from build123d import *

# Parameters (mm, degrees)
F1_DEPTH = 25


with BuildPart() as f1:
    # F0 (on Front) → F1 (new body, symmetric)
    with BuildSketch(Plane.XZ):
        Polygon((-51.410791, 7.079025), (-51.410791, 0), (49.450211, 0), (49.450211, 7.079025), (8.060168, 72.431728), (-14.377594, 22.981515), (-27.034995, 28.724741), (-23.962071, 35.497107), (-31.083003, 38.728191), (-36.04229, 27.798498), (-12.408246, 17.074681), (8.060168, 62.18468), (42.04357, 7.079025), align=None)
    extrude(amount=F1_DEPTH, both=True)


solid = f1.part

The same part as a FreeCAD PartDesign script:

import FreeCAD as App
import Part
import Sketcher

doc = App.newDocument("Part")
body = doc.addObject("PartDesign::Body", "Body")

sketch1 = body.newObject("Sketcher::SketchObject", "Sketch")
sketch1.AttachmentSupport = (doc.getObject("XZ_Plane"), [""])
sketch1.MapMode = "FlatFace"
sketch1.addGeometry([
    Part.LineSegment(App.Vector(-51.410791, 7.079025, 0), App.Vector(-51.410791, 0, 0)),
    Part.LineSegment(App.Vector(-51.410791, 0, 0), App.Vector(49.450211, 0, 0)),
    Part.LineSegment(App.Vector(49.450211, 0, 0), App.Vector(49.450211, 7.079025, 0)),
    Part.LineSegment(App.Vector(49.450211, 7.079025, 0), App.Vector(8.060168, 72.431728, 0)),
    Part.LineSegment(App.Vector(8.060168, 72.431728, 0), App.Vector(-14.377594, 22.981515, 0)),
    Part.LineSegment(App.Vector(-14.377594, 22.981515, 0), App.Vector(-27.034995, 28.724741, 0)),
    Part.LineSegment(App.Vector(-27.034995, 28.724741, 0), App.Vector(-23.962071, 35.497107, 0)),
    Part.LineSegment(App.Vector(-23.962071, 35.497107, 0), App.Vector(-31.083003, 38.728191, 0)),
    Part.LineSegment(App.Vector(-31.083003, 38.728191, 0), App.Vector(-36.04229, 27.798498, 0)),
    Part.LineSegment(App.Vector(-36.04229, 27.798498, 0), App.Vector(-12.408246, 17.074681, 0)),
    Part.LineSegment(App.Vector(-12.408246, 17.074681, 0), App.Vector(8.060168, 62.18468, 0)),
    Part.LineSegment(App.Vector(8.060168, 62.18468, 0), App.Vector(42.04357, 7.079025, 0)),
    Part.LineSegment(App.Vector(42.04357, 7.079025, 0), App.Vector(-51.410791, 7.079025, 0)),
], False)
sketch1.addConstraint([
    Sketcher.Constraint("Coincident", 0, 2, 1, 1),
    Sketcher.Constraint("Coincident", 1, 2, 2, 1),
    Sketcher.Constraint("Coincident", 2, 2, 3, 1),
    Sketcher.Constraint("Coincident", 3, 2, 4, 1),
    Sketcher.Constraint("Coincident", 4, 2, 5, 1),
    Sketcher.Constraint("Coincident", 5, 2, 6, 1),
    Sketcher.Constraint("Coincident", 6, 2, 7, 1),
    Sketcher.Constraint("Coincident", 7, 2, 8, 1),
    Sketcher.Constraint("Coincident", 8, 2, 9, 1),
    Sketcher.Constraint("Coincident", 9, 2, 10, 1),
    Sketcher.Constraint("Coincident", 10, 2, 11, 1),
    Sketcher.Constraint("Coincident", 11, 2, 12, 1),
    Sketcher.Constraint("Coincident", 12, 2, 0, 1),
    Sketcher.Constraint("Vertical", 0),
    Sketcher.Constraint("Horizontal", 1),
    Sketcher.Constraint("Vertical", 2),
    Sketcher.Constraint("Horizontal", 12),
    Sketcher.Constraint("PointOnObject", 0, 2, -1),
    Sketcher.Constraint("Perpendicular", 4, 5),
    Sketcher.Constraint("Perpendicular", 5, 6),
    Sketcher.Constraint("Perpendicular", 6, 7),
    Sketcher.Constraint("Perpendicular", 7, 8),
    Sketcher.Constraint("Perpendicular", 8, 9),
    Sketcher.Constraint("Perpendicular", 9, 10),
    Sketcher.Constraint("Horizontal", 2, 2, 11, 2),
    Sketcher.Constraint("Vertical", 3, 2, 10, 2),
    Sketcher.Constraint("DistanceX", 12, 2, 12, 1, 93.454361),
    Sketcher.Constraint("DistanceX", 5, 2, 4, 2, 12.657401),
    Sketcher.Constraint("DistanceX", 0, 2, 8, 2, 15.368501),
    Sketcher.Constraint("DistanceX", 10, 2, 11, 2, 33.983402),
    Sketcher.Constraint("Distance", 3, 77.357039),
    Sketcher.Constraint("Distance", 4, 54.30264),
    Sketcher.Constraint("Distance", 5, 13.89944),
    Sketcher.Constraint("Distance", 6, 7.436922),
    Sketcher.Constraint("Distance", 7, 7.819692),
    Sketcher.Constraint("Distance", 10, 49.536532),
    Sketcher.Constraint("DistanceX", 1, 1, 1, 2, 100.861002),
    Sketcher.Constraint("DistanceY", 0, 2, 0, 1, 7.079025),
    Sketcher.Constraint("DistanceX", 0, 2, -1, 1, 51.410791),
])
pad1 = body.newObject("PartDesign::Pad", "Pad")
pad1.Profile = sketch1
pad1.Length = 50
pad1.Midplane = True

doc.recompute()
